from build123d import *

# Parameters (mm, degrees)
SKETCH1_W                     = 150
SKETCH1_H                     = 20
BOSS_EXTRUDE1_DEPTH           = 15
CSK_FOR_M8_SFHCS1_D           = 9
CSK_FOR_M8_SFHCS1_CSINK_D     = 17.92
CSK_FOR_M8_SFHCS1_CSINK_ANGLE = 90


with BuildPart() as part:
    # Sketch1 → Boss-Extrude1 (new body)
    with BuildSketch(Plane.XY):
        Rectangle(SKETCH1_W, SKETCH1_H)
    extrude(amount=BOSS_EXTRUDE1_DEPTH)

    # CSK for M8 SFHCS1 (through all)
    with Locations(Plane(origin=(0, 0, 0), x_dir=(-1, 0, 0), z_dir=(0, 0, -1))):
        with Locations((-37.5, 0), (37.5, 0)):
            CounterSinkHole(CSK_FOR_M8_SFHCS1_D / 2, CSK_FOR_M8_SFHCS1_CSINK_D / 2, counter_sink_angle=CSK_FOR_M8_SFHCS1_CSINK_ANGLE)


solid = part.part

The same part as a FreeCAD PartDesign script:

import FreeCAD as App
import Part
import Sketcher

V = App.Vector
Q = App.Units.Quantity

doc = App.newDocument("Part")
params = doc.addObject("Spreadsheet::Sheet", "Params")
for row, (alias, value) in enumerate([
    ("sketch1_width", "150 mm"),
    ("sketch1_height", "20 mm"),
    ("pad1_length", "15 mm"),
    ("sketch2_diameter", "9 mm"),
    ("hole_diameter", "9 mm"),
    ("hole_csink_diameter", "17.92 mm"),
], start=1):
    params.set(f"A{row}", alias)
    params.set(f"B{row}", "=" + value)
    params.setAlias(f"B{row}", alias)

body = doc.addObject("PartDesign::Body", "Body")

sketch1 = doc.addObject("Sketcher::SketchObject", "Sketch")
body.addObject(sketch1)
sketch1.AttachmentSupport = (doc.XY_Plane, [""])
sketch1.MapMode = "FlatFace"
sketch1.addGeometry(Part.LineSegment(V(-75, 10, 0), V(-75, -10, 0)), False)
sketch1.addGeometry(Part.LineSegment(V(-75, -10, 0), V(75, -10, 0)), False)
sketch1.addGeometry(Part.LineSegment(V(75, -10, 0), V(75, 10, 0)), False)
sketch1.addGeometry(Part.LineSegment(V(75, 10, 0), V(-75, 10, 0)), False)
sketch1.addConstraint(Sketcher.Constraint("Coincident", 0, 2, 1, 1))
sketch1.addConstraint(Sketcher.Constraint("Coincident", 1, 2, 2, 1))
sketch1.addConstraint(Sketcher.Constraint("Coincident", 2, 2, 3, 1))
sketch1.addConstraint(Sketcher.Constraint("Coincident", 3, 2, 0, 1))
sketch1.addConstraint(Sketcher.Constraint("Vertical", 0))
sketch1.addConstraint(Sketcher.Constraint("Horizontal", 1))
sketch1.addConstraint(Sketcher.Constraint("Vertical", 2))
sketch1.addConstraint(Sketcher.Constraint("Horizontal", 3))
sketch1.addConstraint(Sketcher.Constraint("Symmetric", 0, 2, 2, 2, -1, 1))
sketch1.addConstraint(Sketcher.Constraint("DistanceX", 1, 1, 1, 2, Q("150 mm")))
sketch1.addConstraint(Sketcher.Constraint("DistanceY", 0, 2, 0, 1, Q("20 mm")))
sketch1.setExpression("Constraints[9]", "Params.sketch1_width")
sketch1.setExpression("Constraints[10]", "Params.sketch1_height")
pad1 = doc.addObject("PartDesign::Pad", "Pad")
body.addObject(pad1)
pad1.Profile = sketch1
pad1.setExpression("Length", "Params.pad1_length")

sketch2 = doc.addObject("Sketcher::SketchObject", "Sketch001")
body.addObject(sketch2)
sketch2.AttachmentSupport = (doc.XY_Plane, [""])
sketch2.MapMode = "FlatFace"
sketch2.addGeometry(Part.Circle(V(37.5, 0, 0), V(0, 0, 1), 4.5), False)
sketch2.addGeometry(Part.Circle(V(-37.5, 0, 0), V(0, 0, 1), 4.5), False)
sketch2.addConstraint(Sketcher.Constraint("Equal", 0, 1))
sketch2.addConstraint(Sketcher.Constraint("Symmetric", 0, 3, 1, 3, -1, 1))
sketch2.addConstraint(Sketcher.Constraint("PointOnObject", 0, 3, -1))
sketch2.addConstraint(Sketcher.Constraint("Diameter", 0, Q("9 mm")))
sketch2.addConstraint(Sketcher.Constraint("DistanceX", 1, 3, 0, 3, Q("75 mm")))
sketch2.setExpression("Constraints[3]", "Params.sketch2_diameter")
doc.recompute()
hole = doc.addObject("PartDesign::Hole", "Hole")
body.addObject(hole)
hole.Profile = sketch2
hole.ThreadType = "None"
hole.setExpression("Diameter", "Params.hole_diameter")
hole.DepthType = "ThroughAll"
hole.HoleCutType = "Countersink"
hole.setExpression("HoleCutDiameter", "Params.hole_csink_diameter")
hole.HoleCutCountersinkAngle = 90
hole.Reversed = True

doc.recompute()
